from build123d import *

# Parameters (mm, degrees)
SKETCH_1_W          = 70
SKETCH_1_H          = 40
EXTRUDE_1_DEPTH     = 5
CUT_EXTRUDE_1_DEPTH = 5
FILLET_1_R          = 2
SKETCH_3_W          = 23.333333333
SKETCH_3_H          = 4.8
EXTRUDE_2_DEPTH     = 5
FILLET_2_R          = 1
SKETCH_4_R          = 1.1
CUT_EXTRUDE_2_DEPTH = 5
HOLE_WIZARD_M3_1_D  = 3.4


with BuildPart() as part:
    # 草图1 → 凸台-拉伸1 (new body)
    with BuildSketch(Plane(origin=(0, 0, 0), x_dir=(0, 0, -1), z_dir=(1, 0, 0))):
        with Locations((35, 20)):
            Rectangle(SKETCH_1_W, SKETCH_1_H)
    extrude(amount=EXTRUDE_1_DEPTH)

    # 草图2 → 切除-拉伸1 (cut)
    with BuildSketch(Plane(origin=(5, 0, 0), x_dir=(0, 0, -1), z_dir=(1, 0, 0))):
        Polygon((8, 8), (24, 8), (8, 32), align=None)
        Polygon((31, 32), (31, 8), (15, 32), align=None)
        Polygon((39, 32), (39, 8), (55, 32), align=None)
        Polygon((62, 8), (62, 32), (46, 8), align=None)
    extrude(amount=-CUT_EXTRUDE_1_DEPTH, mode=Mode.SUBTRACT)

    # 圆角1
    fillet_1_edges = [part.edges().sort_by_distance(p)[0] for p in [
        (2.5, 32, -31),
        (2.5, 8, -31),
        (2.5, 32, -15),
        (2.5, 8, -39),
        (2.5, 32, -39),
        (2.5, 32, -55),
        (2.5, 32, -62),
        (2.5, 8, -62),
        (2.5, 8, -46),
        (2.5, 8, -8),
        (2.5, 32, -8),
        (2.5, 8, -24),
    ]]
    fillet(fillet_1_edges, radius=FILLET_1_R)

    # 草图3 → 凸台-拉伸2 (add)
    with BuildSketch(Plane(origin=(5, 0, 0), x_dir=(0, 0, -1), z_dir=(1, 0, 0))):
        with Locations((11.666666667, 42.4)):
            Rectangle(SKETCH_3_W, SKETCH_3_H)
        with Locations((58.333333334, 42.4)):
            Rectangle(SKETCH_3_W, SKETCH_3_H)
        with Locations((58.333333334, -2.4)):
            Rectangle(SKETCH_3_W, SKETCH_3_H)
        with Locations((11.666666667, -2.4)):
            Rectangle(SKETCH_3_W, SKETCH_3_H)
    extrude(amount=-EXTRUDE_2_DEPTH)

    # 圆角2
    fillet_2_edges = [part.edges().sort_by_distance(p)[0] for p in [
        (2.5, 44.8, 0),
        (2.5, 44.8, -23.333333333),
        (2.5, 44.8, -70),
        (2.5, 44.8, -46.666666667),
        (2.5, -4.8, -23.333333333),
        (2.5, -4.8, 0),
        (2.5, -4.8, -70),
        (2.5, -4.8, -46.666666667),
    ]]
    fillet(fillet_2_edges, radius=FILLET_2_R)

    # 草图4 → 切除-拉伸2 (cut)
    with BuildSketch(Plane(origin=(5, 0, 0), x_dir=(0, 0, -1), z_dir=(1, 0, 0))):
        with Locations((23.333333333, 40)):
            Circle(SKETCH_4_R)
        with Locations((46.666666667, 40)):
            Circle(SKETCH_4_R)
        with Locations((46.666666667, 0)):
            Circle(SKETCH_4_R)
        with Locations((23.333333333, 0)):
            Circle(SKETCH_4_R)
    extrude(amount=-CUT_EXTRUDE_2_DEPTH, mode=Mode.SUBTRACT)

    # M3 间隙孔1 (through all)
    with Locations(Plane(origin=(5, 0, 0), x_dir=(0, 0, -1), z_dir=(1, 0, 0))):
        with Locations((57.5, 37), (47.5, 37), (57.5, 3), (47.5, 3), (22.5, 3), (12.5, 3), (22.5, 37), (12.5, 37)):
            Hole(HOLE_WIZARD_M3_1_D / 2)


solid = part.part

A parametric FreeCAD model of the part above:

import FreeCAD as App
import Part
import Sketcher

V = App.Vector
Q = App.Units.Quantity


def edges_at(feature, points):
    """Names of the edges that pass closest to the given points."""
    edges = feature.Shape.Edges
    near = lambda p: min(range(len(edges)), key=lambda i: edges[i].distToShape(Part.Vertex(*p))[0])
    return sorted({f"Edge{near(p) + 1}" for p in points})


def add_polygon(sketch, points):
    """Adds a closed chain of lines whose ends are joined by coincident constraints."""
    first, n = sketch.GeometryCount, len(points)
    for a, b in zip(points, points[1:] + points[:1]):
        sketch.addGeometry(Part.LineSegment(App.Vector(*a, 0), App.Vector(*b, 0)), False)
    for i in range(n):
        sketch.addConstraint(Sketcher.Constraint("Coincident", first + i, 2, first + (i + 1) % n, 1))

doc = App.newDocument("Part")
body = doc.addObject("PartDesign::Body", "Body")

# Sketch on YZ plane
sketch1 = doc.addObject("Sketcher::SketchObject", "Sketch")
body.addObject(sketch1)
sketch1.AttachmentSupport = (doc.YZ_Plane, [""])
sketch1.MapMode = "FlatFace"
add_polygon(sketch1, [(40, 0), (0, 0), (0, -70), (40, -70)])  # lines 0-3
sketch1.addConstraint([
    Sketcher.Constraint("Horizontal", 0),
    Sketcher.Constraint("Vertical", 1),
    Sketcher.Constraint("Horizontal", 2),
    Sketcher.Constraint("Vertical", 3),
    Sketcher.Constraint("Coincident", 0, 2, -1, 1),
    Sketcher.Constraint("DistanceX", 0, 2, 0, 1, Q("40 mm")),
    Sketcher.Constraint("DistanceY", 1, 2, 1, 1, Q("70 mm")),
])
pad1 = doc.addObject("PartDesign::Pad", "Pad")
body.addObject(pad1)
pad1.Profile = sketch1
pad1.Length = 5

# Sketch on YZ plane
sketch2 = doc.addObject("Sketcher::SketchObject", "Sketch001")
body.addObject(sketch2)
sketch2.AttachmentSupport = (doc.YZ_Plane, [""])
sketch2.MapMode = "FlatFace"
sketch2.AttachmentOffset = App.Placement(V(0, 0, 5), App.Rotation())
add_polygon(sketch2, [(8, -8), (8, -24), (32, -8)])  # lines 0-2
add_polygon(sketch2, [(8, -31), (32, -31), (32, -15)])  # lines 3-5
add_polygon(sketch2, [(32, -39), (8, -39), (32, -55)])  # lines 6-8
add_polygon(sketch2, [(8, -62), (32, -62), (8, -46)])  # lines 9-11
sketch2.addConstraint([
    Sketcher.Constraint("Vertical", 0),
    Sketcher.Constraint("Horizontal", 2),
    Sketcher.Constraint("Horizontal", 3),
    Sketcher.Constraint("Vertical", 4),
    Sketcher.Constraint("Horizontal", 6),
    Sketcher.Constraint("Vertical", 8),
    Sketcher.Constraint("Horizontal", 9),
    Sketcher.Constraint("Vertical", 11),
    Sketcher.Constraint("Parallel", 1, 5),
    Sketcher.Constraint("Parallel", 7, 10),
    Sketcher.Constraint("Vertical", 1, 2, 3, 2),
    Sketcher.Constraint("Vertical", 2, 2, 5, 2),
    Sketcher.Constraint("Vertical", 5, 2, 6, 2),
    Sketcher.Constraint("Vertical", 4, 2, 7, 2),
    Sketcher.Constraint("Vertical", 8, 2, 9, 2),
    Sketcher.Constraint("Vertical", 6, 2, 10, 2),
    Sketcher.Constraint("Equal", 4, 8),
    Sketcher.Constraint("DistanceX", 2, 2, 2, 1, Q("24 mm")),
    Sketcher.Constraint("DistanceY", 0, 2, 0, 1, Q("16 mm")),
    Sketcher.Constraint("DistanceX", -1, 1, 0, 2, Q("8 mm")),
    Sketcher.Constraint("DistanceY", 0, 2, -1, 1, Q("24 mm")),
    Sketcher.Constraint("DistanceY", 3, 2, -1, 1, Q("31 mm")),
    Sketcher.Constraint("DistanceY", 6, 2, -1, 1, Q("39 mm")),
    Sketcher.Constraint("DistanceY", 9, 2, -1, 1, Q("62 mm")),
])
pocket1 = doc.addObject("PartDesign::Pocket", "Pocket")
body.addObject(pocket1)
pocket1.Profile = sketch2
pocket1.Length = 5
doc.recompute()

fillet = doc.addObject("PartDesign::Fillet", "Fillet")
body.addObject(fillet)
fillet.Base = (pocket1, edges_at(pocket1, [
    (2.5, 32, -31),
    (2.5, 8, -31),
    (2.5, 32, -15),
    (2.5, 8, -39),
    (2.5, 32, -39),
    (2.5, 32, -55),
    (2.5, 32, -62),
    (2.5, 8, -62),
    (2.5, 8, -46),
    (2.5, 8, -8),
    (2.5, 32, -8),
    (2.5, 8, -24),
]))
fillet.Radius = 2

# Sketch on YZ plane
sketch3 = doc.addObject("Sketcher::SketchObject", "Sketch002")
body.addObject(sketch3)
sketch3.AttachmentSupport = (doc.YZ_Plane, [""])
sketch3.MapMode = "FlatFace"
sketch3.AttachmentOffset = App.Placement(V(0, 0, 5), App.Rotation())
add_polygon(sketch3, [(44.8, 0), (40, 0), (40, -23.3), (44.8, -23.3)])  # lines 0-3
add_polygon(sketch3, [(44.8, -46.7), (40, -46.7), (40, -70), (44.8, -70)])  # lines 4-7
add_polygon(sketch3, [(0, -46.7), (-4.8, -46.7), (-4.8, -70), (0, -70)])  # lines 8-11
add_polygon(sketch3, [(0, 0), (-4.8, 0), (-4.8, -23.3), (0, -23.3)])  # lines 12-15
sketch3.addConstraint([
    Sketcher.Constraint("Horizontal", 0),
    Sketcher.Constraint("Vertical", 1),
    Sketcher.Constraint("Horizontal", 2),
    Sketcher.Constraint("Vertical", 3),
    Sketcher.Constraint("Horizontal", 4),
    Sketcher.Constraint("Vertical", 5),
    Sketcher.Constraint("Horizontal", 6),
    Sketcher.Constraint("Vertical", 7),
    Sketcher.Constraint("Horizontal", 8),
    Sketcher.Constraint("Vertical", 9),
    Sketcher.Constraint("Horizontal", 10),
    Sketcher.Constraint("Vertical", 11),
    Sketcher.Constraint("Horizontal", 12),
    Sketcher.Constraint("Vertical", 13),
    Sketcher.Constraint("Horizontal", 14),
    Sketcher.Constraint("Vertical", 15),
    Sketcher.Constraint("Coincident", 15, 2, -1, 1),
    Sketcher.Constraint("PointOnObject", 0, 2, -1),
    Sketcher.Constraint("PointOnObject", 10, 2, -2),
    Sketcher.Constraint("Horizontal", 7, 2, 8, 2),
    Sketcher.Constraint("Horizontal", 6, 2, 9, 2),
    Sketcher.Constraint("Horizontal", 2, 2, 13, 2),
    Sketcher.Constraint("Vertical", 1, 2, 4, 2),
    Sketcher.Constraint("Vertical", 3, 2, 6, 2),
    Sketcher.Constraint("Vertical", 9, 2, 12, 2),
    Sketcher.Constraint("Equal", 6, 8),
    Sketcher.Constraint("Equal", 3, 5),
    Sketcher.Constraint("DistanceX", 0, 2, 0, 1, Q("4.8 mm")),
    Sketcher.Constraint("DistanceX", -1, 1, 0, 2, Q("40 mm")),
    Sketcher.Constraint("DistanceY", 5, 2, -1, 1, Q("70 mm")),
    Sketcher.Constraint("DistanceY", 1, 2, 1, 1, Q("23.333333 mm")),
])
pad2 = doc.addObject("PartDesign::Pad", "Pad001")
body.addObject(pad2)
pad2.Profile = sketch3
pad2.Length = 5
pad2.Reversed = True
doc.recompute()

fillet2 = doc.addObject("PartDesign::Fillet", "Fillet001")
body.addObject(fillet2)
fillet2.Base = (pad2, edges_at(pad2, [
    (2.5, 44.8, 0),
    (2.5, 44.8, -23.333),
    (2.5, 44.8, -70),
    (2.5, 44.8, -46.667),
    (2.5, -4.8, -23.333),
    (2.5, -4.8, 0),
    (2.5, -4.8, -70),
    (2.5, -4.8, -46.667),
]))
fillet2.Radius = 1

# Sketch on YZ plane
sketch4 = doc.addObject("Sketcher::SketchObject", "Sketch003")
body.addObject(sketch4)
sketch4.AttachmentSupport = (doc.YZ_Plane, [""])
sketch4.MapMode = "FlatFace"
sketch4.AttachmentOffset = App.Placement(V(0, 0, 5), App.Rotation())
sketch4.addGeometry([
    Part.Circle(V(40, -23.3, 0), V(0, 0, 1), 1.1),
    Part.Circle(V(40, -46.7, 0), V(0, 0, 1), 1.1),
    Part.Circle(V(0, -46.7, 0), V(0, 0, 1), 1.1),
    Part.Circle(V(0, -23.3, 0), V(0, 0, 1), 1.1),
], False)
sketch4.addConstraint([
    Sketcher.Constraint("Equal", 0, 1),
    Sketcher.Constraint("Equal", 1, 2),
    Sketcher.Constraint("Equal", 2, 3),
    Sketcher.Constraint("PointOnObject", 2, 3, -2),
    Sketcher.Constraint("PointOnObject", 3, 3, -2),
    Sketcher.Constraint("Horizontal", 1, 3, 2, 3),
    Sketcher.Constraint("Horizontal", 0, 3, 3, 3),
    Sketcher.Constraint("Vertical", 0, 3, 1, 3),
    Sketcher.Constraint("Diameter", 0, Q("2.2 mm")),
    Sketcher.Constraint("DistanceX", -1, 1, 0, 3, Q("40 mm")),
    Sketcher.Constraint("DistanceY", 0, 3, -1, 1, Q("23.333333 mm")),
    Sketcher.Constraint("DistanceY", 1, 3, -1, 1, Q("46.666667 mm")),
])
pocket2 = doc.addObject("PartDesign::Pocket", "Pocket001")
body.addObject(pocket2)
pocket2.Profile = sketch4
pocket2.Length = 5

# Sketch on YZ plane
sketch5 = doc.addObject("Sketcher::SketchObject", "Sketch004")
body.addObject(sketch5)
sketch5.AttachmentSupport = (doc.YZ_Plane, [""])
sketch5.MapMode = "FlatFace"
sketch5.AttachmentOffset = App.Placement(V(0, 0, 5), App.Rotation())
sketch5.addGeometry([
    Part.Circle(V(37, -57.5, 0), V(0, 0, 1), 1.7),  # 0
    Part.Circle(V(37, -47.5, 0), V(0, 0, 1), 1.7),  # 1
    Part.Circle(V(3, -57.5, 0), V(0, 0, 1), 1.7),  # 2
    Part.Circle(V(3, -47.5, 0), V(0, 0, 1), 1.7),  # 3
    Part.Circle(V(3, -22.5, 0), V(0, 0, 1), 1.7),  # 4
    Part.Circle(V(3, -12.5, 0), V(0, 0, 1), 1.7),  # 5
    Part.Circle(V(37, -22.5, 0), V(0, 0, 1), 1.7),  # 6
    Part.Circle(V(37, -12.5, 0), V(0, 0, 1), 1.7),  # 7
], False)
sketch5.addConstraint([
    Sketcher.Constraint("Equal", 0, 1),
    Sketcher.Constraint("Equal", 1, 2),
    Sketcher.Constraint("Equal", 2, 3),
    Sketcher.Constraint("Equal", 3, 4),
    Sketcher.Constraint("Equal", 4, 5),
    Sketcher.Constraint("Equal", 5, 6),
    Sketcher.Constraint("Equal", 6, 7),
    Sketcher.Constraint("Horizontal", 0, 3, 2, 3),
    Sketcher.Constraint("Horizontal", 1, 3, 3, 3),
    Sketcher.Constraint("Horizontal", 4, 3, 6, 3),
    Sketcher.Constraint("Horizontal", 5, 3, 7, 3),
    Sketcher.Constraint("Vertical", 0, 3, 1, 3),
    Sketcher.Constraint("Vertical", 2, 3, 3, 3),
    Sketcher.Constraint("Vertical", 3, 3, 4, 3),
    Sketcher.Constraint("Vertical", 4, 3, 5, 3),
    Sketcher.Constraint("Vertical", 1, 3, 6, 3),
    Sketcher.Constraint("Vertical", 6, 3, 7, 3),
    Sketcher.Constraint("Diameter", 0, Q("3.4 mm")),
    Sketcher.Constraint("DistanceX", -1, 1, 0, 3, Q("37 mm")),
    Sketcher.Constraint("DistanceX", -1, 1, 2, 3, Q("3 mm")),
    Sketcher.Constraint("DistanceY", 0, 3, 1, 3, Q("10 mm")),
    Sketcher.Constraint("DistanceY", 3, 3, 4, 3, Q("25 mm")),
    Sketcher.Constraint("DistanceY", 4, 3, 5, 3, Q("10 mm")),
    Sketcher.Constraint("DistanceY", 0, 3, -1, 1, Q("57.5 mm")),
])
doc.recompute()
hole = doc.addObject("PartDesign::Hole", "Hole")
body.addObject(hole)
hole.Profile = sketch5
hole.ThreadType = "None"
hole.Diameter = 3.4
hole.DepthType = "ThroughAll"

doc.recompute()
